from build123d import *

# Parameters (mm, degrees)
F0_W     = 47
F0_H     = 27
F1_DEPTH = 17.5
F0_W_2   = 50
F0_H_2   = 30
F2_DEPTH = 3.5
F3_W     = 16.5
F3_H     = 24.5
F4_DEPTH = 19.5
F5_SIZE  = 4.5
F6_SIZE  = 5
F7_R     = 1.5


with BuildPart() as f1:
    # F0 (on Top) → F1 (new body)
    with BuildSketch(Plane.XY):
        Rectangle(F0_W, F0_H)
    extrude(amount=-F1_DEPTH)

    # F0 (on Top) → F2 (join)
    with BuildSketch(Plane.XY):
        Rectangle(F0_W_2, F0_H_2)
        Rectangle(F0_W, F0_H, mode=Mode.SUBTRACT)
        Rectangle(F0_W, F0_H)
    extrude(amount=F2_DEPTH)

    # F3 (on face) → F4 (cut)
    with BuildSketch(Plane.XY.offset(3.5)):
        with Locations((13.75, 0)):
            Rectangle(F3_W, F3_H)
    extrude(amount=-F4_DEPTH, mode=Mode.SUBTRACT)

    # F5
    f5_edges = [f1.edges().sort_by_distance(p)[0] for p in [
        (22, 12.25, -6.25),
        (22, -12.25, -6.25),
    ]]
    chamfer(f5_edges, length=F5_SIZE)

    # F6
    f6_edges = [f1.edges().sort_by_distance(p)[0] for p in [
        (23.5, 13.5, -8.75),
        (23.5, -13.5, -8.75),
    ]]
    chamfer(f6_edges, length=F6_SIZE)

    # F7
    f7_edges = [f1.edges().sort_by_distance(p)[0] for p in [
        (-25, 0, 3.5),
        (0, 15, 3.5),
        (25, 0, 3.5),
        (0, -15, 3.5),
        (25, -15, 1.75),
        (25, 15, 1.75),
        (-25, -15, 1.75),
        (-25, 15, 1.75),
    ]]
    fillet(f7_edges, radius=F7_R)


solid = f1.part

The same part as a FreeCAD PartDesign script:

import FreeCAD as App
import Part
import Sketcher
from FreeCAD import Vector


def edges_at(feature, points):
    """Names of the edges that pass closest to the given points."""
    edges = feature.Shape.Edges
    near = lambda p: min(range(len(edges)), key=lambda i: edges[i].distToShape(Part.Vertex(*p))[0])
    return sorted({f"Edge{near(p) + 1}" for p in points})


def add_polygon(sketch, points):
    """Adds a closed chain of lines whose ends are joined by coincident constraints."""
    first, n = sketch.GeometryCount, len(points)
    for a, b in zip(points, points[1:] + points[:1]):
        sketch.addGeometry(Part.LineSegment(App.Vector(*a, 0), App.Vector(*b, 0)), False)
    for i in range(n):
        sketch.addConstraint(Sketcher.Constraint("Coincident", first + i, 2, first + (i + 1) % n, 1))

doc = App.newDocument("Part")
params = doc.addObject("Spreadsheet::Sheet", "Params")
for row, (alias, value) in enumerate([
    ("sketch1_width", "47 mm"),
    ("sketch1_height", "27 mm"),
    ("pad1_length", "17.5 mm"),
    ("sketch2_width", "50 mm"),
    ("sketch2_height", "30 mm"),
    ("pad2_length", "3.5 mm"),
    ("sketch3_width", "16.5 mm"),
    ("sketch3_height", "24.5 mm"),
    ("pocket1_length", "19.5 mm"),
    ("chamfer_size", "4.5 mm"),
    ("chamfer2_size", "5 mm"),
    ("fillet_radius", "1.5 mm"),
], start=1):
    params.set(f"A{row}", alias)
    params.set(f"B{row}", "=" + value)
    params.setAlias(f"B{row}", alias)

body = doc.addObject("PartDesign::Body", "Body")

sketch1 = body.newObject("Sketcher::SketchObject", "Sketch")
sketch1.AttachmentSupport = (doc.getObject("XY_Plane"), [""])
sketch1.MapMode = "FlatFace"
add_polygon(sketch1, [(-24, 14), (-24, -14), (24, -14), (24, 14)])
sketch1.addConstraint([
    Sketcher.Constraint("Vertical", 0),
    Sketcher.Constraint("Horizontal", 1),
    Sketcher.Constraint("Vertical", 2),
    Sketcher.Constraint("Horizontal", 3),
    Sketcher.Constraint("Symmetric", 0, 2, 2, 2, -1, 1),
    Sketcher.Constraint("DistanceX", 1, 1, 1, 2, 47.0),
    Sketcher.Constraint("DistanceY", 0, 2, 0, 1, 27.0),
])
sketch1.setExpression("Constraints[9]", "Params.sketch1_width")
sketch1.setExpression("Constraints[10]", "Params.sketch1_height")
pad1 = body.newObject("PartDesign::Pad", "Pad")
pad1.Profile = sketch1
pad1.setExpression("Length", "Params.pad1_length")
pad1.Reversed = True

sketch2 = body.newObject("Sketcher::SketchObject", "Sketch001")
sketch2.AttachmentSupport = (doc.getObject("XY_Plane"), [""])
sketch2.MapMode = "FlatFace"
add_polygon(sketch2, [(-25, 15), (-25, -15), (25, -15), (25, 15)])
sketch2.addConstraint([
    Sketcher.Constraint("Vertical", 0),
    Sketcher.Constraint("Horizontal", 1),
    Sketcher.Constraint("Vertical", 2),
    Sketcher.Constraint("Horizontal", 3),
    Sketcher.Constraint("Symmetric", 0, 2, 2, 2, -1, 1),
    Sketcher.Constraint("DistanceX", 1, 1, 1, 2, 50.0),
    Sketcher.Constraint("DistanceY", 0, 2, 0, 1, 30.0),
])
sketch2.setExpression("Constraints[9]", "Params.sketch2_width")
sketch2.setExpression("Constraints[10]", "Params.sketch2_height")
pad2 = body.newObject("PartDesign::Pad", "Pad001")
pad2.Profile = sketch2
pad2.setExpression("Length", "Params.pad2_length")

sketch3 = body.newObject("Sketcher::SketchObject", "Sketch002")
sketch3.AttachmentSupport = (doc.getObject("XY_Plane"), [""])
sketch3.MapMode = "FlatFace"
sketch3.AttachmentOffset = App.Placement(Vector(0, 0, 3.5), App.Rotation())
add_polygon(sketch3, [(6, 12), (6, -12), (22, -12), (22, 12)])
sketch3.addConstraint([
    Sketcher.Constraint("Vertical", 0),
    Sketcher.Constraint("Horizontal", 1),
    Sketcher.Constraint("Vertical", 2),
    Sketcher.Constraint("Horizontal", 3),
    Sketcher.Constraint("DistanceX", 1, 1, 1, 2, 16.5),
    Sketcher.Constraint("DistanceY", 0, 2, 0, 1, 24.5),
    Sketcher.Constraint("DistanceX", -1, 1, 1, 2, 22.0),
    Sketcher.Constraint("DistanceY", 0, 2, -1, 1, 12.25),
])
sketch3.setExpression("Constraints[8]", "Params.sketch3_width")
sketch3.setExpression("Constraints[9]", "Params.sketch3_height")
pocket1 = body.newObject("PartDesign::Pocket", "Pocket")
pocket1.Profile = sketch3
pocket1.setExpression("Length", "Params.pocket1_length")
doc.recompute()

chamfer = body.newObject("PartDesign::Chamfer", "Chamfer")
chamfer.Base = (pocket1, edges_at(pocket1, [(22, 12.25, -6.25), (22, -12.25, -6.25)]))
chamfer.setExpression("Size", "Params.chamfer_size")
doc.recompute()

chamfer2 = body.newObject("PartDesign::Chamfer", "Chamfer001")
chamfer2.Base = (chamfer, edges_at(chamfer, [(23.5, 13.5, -8.75), (23.5, -13.5, -8.75)]))
chamfer2.setExpression("Size", "Params.chamfer2_size")
doc.recompute()

fillet = body.newObject("PartDesign::Fillet", "Fillet")
fillet.Base = (chamfer2, edges_at(chamfer2, [
    (-25, 0, 3.5),
    (0, 15, 3.5),
    (25, 0, 3.5),
    (0, -15, 3.5),
    (25, -15, 1.75),
    (25, 15, 1.75),
    (-25, -15, 1.75),
    (-25, 15, 1.75),
]))
fillet.setExpression("Radius", "Params.fillet_radius")

doc.recompute()
